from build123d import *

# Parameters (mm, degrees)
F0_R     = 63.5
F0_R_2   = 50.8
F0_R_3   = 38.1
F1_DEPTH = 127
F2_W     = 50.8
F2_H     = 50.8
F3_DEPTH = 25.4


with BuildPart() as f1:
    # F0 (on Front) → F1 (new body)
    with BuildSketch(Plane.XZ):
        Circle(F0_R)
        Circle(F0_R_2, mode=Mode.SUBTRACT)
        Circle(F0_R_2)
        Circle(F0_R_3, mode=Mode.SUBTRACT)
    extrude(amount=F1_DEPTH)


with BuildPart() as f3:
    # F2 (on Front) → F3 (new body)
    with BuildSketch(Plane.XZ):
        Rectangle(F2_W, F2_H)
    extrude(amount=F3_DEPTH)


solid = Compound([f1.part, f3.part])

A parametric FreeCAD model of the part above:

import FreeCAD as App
import Part
import Sketcher

V = App.Vector
Q = App.Units.Quantity


def add_polygon(sketch, points):
    """Adds a closed chain of lines whose ends are joined by coincident constraints."""
    first, n = sketch.GeometryCount, len(points)
    for a, b in zip(points, points[1:] + points[:1]):
        sketch.addGeometry(Part.LineSegment(App.Vector(*a, 0), App.Vector(*b, 0)), False)
    for i in range(n):
        sketch.addConstraint(Sketcher.Constraint("Coincident", first + i, 2, first + (i + 1) % n, 1))

doc = App.newDocument("Part")
body = doc.addObject("PartDesign::Body", "Body")

# Sketch on XZ plane
sketch1 = body.newObject("Sketcher::SketchObject", "Sketch")
sketch1.AttachmentSupport = (doc.getObject("XZ_Plane"), [""])
sketch1.MapMode = "FlatFace"
sketch1.addGeometry(Part.Circle(V(0, 0, 0), V(0, 0, 1), 63.5), False)
sketch1.addGeometry(Part.Circle(V(0, 0, 0), V(0, 0, 1), 38.1), False)
sketch1.addConstraint(Sketcher.Constraint("Coincident", 0, 3, -1, 1))
sketch1.addConstraint(Sketcher.Constraint("Coincident", 1, 3, -1, 1))
sketch1.addConstraint(Sketcher.Constraint("Diameter", 0, Q("5 in")))
sketch1.addConstraint(Sketcher.Constraint("Diameter", 1, Q("3 in")))
pad1 = body.newObject("PartDesign::Pad", "Pad")
pad1.Profile = sketch1
pad1.Length = Q("5 in")
body2 = doc.addObject("PartDesign::Body", "Body001")

# Sketch on XZ plane
sketch2 = body2.newObject("Sketcher::SketchObject", "Sketch001")
sketch2.AttachmentSupport = (doc.getObject("XZ_Plane001"), [""])
sketch2.MapMode = "FlatFace"
add_polygon(sketch2, [(-25.4, 25.4), (-25.4, -25.4), (25.4, -25.4), (25.4, 25.4)])  # lines 0-3
sketch2.addConstraint(Sketcher.Constraint("Vertical", 0))
sketch2.addConstraint(Sketcher.Constraint("Horizontal", 1))
sketch2.addConstraint(Sketcher.Constraint("Vertical", 2))
sketch2.addConstraint(Sketcher.Constraint("Horizontal", 3))
sketch2.addConstraint(Sketcher.Constraint("Symmetric", 0, 2, 2, 2, -1, 1))
sketch2.addConstraint(Sketcher.Constraint("Equal", 3, 0))
sketch2.addConstraint(Sketcher.Constraint("DistanceX", 1, 1, 1, 2, Q("2 in")))
pad2 = body2.newObject("PartDesign::Pad", "Pad001")
pad2.Profile = sketch2
pad2.Length = Q("1 in")

doc.recompute()
